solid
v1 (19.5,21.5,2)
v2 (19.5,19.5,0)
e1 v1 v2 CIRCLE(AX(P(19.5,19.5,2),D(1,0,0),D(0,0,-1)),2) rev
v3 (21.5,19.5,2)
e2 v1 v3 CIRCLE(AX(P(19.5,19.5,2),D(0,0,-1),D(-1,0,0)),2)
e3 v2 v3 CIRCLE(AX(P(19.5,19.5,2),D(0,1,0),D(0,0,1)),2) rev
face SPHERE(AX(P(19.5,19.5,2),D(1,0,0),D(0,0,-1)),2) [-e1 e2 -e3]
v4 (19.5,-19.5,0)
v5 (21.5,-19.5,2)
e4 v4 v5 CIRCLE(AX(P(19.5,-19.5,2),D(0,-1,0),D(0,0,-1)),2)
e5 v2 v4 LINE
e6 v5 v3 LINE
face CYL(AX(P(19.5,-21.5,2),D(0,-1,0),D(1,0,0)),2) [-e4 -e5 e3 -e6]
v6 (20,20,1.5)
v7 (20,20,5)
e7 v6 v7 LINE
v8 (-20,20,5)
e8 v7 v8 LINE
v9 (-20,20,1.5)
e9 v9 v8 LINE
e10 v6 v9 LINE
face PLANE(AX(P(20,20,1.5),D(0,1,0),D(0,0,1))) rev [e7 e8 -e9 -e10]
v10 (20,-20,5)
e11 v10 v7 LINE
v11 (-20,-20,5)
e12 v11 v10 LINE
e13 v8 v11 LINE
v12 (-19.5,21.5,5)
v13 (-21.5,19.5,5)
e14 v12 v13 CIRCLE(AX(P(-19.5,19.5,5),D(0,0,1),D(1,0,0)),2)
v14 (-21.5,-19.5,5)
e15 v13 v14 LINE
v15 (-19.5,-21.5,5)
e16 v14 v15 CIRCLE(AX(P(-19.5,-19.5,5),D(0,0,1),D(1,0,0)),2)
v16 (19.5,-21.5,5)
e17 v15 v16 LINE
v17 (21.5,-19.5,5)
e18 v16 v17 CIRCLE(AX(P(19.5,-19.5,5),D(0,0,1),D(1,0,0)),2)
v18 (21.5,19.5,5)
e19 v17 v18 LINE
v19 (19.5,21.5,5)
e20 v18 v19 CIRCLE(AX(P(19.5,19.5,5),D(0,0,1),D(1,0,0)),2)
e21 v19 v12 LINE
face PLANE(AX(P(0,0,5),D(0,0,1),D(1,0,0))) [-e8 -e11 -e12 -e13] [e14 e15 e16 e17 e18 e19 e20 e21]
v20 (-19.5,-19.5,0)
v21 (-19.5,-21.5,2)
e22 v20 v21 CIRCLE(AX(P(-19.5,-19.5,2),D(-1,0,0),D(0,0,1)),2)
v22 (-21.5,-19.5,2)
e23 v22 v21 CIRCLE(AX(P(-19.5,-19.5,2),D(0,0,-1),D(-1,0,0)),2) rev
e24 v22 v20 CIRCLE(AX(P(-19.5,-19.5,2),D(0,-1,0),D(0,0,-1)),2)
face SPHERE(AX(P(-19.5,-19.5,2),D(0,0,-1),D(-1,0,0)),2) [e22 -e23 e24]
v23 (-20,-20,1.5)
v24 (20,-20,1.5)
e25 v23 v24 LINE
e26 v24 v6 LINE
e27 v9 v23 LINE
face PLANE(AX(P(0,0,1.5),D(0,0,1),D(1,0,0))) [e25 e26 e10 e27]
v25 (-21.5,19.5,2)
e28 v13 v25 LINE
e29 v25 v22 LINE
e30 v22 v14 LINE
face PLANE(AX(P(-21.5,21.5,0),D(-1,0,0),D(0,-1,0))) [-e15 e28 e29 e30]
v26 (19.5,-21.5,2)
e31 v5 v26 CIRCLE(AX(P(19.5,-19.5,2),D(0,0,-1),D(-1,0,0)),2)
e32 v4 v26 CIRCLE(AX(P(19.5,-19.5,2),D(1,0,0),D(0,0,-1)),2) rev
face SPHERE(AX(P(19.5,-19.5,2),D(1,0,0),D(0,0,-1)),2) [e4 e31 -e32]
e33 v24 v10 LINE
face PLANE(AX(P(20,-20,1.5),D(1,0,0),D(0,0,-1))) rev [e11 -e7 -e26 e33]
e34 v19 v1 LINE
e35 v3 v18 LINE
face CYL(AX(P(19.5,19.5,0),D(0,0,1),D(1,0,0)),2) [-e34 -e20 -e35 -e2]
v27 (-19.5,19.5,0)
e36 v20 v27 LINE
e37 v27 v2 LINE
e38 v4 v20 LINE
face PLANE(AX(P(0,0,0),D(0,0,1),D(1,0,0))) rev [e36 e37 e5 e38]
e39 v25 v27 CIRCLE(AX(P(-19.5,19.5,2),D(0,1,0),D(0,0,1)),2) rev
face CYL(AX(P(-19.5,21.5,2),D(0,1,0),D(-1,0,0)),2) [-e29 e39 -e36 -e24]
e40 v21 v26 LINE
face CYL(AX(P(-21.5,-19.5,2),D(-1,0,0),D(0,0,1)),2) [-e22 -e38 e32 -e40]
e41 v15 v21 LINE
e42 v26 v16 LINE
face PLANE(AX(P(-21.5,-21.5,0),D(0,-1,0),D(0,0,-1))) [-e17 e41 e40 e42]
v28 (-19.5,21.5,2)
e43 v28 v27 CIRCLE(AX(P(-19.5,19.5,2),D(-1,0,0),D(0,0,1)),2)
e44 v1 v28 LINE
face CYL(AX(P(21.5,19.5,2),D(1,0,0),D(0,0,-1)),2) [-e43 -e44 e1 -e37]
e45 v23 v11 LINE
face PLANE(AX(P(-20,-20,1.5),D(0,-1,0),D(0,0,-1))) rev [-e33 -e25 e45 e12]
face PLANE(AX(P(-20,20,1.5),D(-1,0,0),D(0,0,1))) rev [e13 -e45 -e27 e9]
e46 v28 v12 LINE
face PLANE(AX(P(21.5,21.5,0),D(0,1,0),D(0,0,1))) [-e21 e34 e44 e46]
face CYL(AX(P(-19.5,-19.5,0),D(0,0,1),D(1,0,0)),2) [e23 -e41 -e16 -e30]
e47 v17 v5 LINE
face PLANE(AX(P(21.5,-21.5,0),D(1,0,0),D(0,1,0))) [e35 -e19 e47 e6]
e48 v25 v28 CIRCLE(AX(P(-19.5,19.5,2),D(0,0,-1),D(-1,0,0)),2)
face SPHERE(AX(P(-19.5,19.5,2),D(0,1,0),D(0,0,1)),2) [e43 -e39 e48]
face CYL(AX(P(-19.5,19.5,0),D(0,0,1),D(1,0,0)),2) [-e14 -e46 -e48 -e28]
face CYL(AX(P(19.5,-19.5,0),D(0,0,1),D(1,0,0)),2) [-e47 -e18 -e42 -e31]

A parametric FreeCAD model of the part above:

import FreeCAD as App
import Part
import Sketcher

V = App.Vector
Q = App.Units.Quantity


def edges_at(feature, points):
    """Names of the edges that pass closest to the given points."""
    edges = feature.Shape.Edges
    near = lambda p: min(range(len(edges)), key=lambda i: edges[i].distToShape(Part.Vertex(*p))[0])
    return sorted({f"Edge{near(p) + 1}" for p in points})

doc = App.newDocument("Part")
body = doc.addObject("PartDesign::Body", "Body")

# Sketch on XY plane
sketch1 = body.newObject("Sketcher::SketchObject", "Sketch")
sketch1.AttachmentSupport = (doc.getObject("XY_Plane"), [""])
sketch1.MapMode = "FlatFace"
sketch1.AttachmentOffset = App.Placement(V(0, 0, 5), App.Rotation())
sketch1.addGeometry([
    Part.LineSegment(V(-22, 22, 0), V(-22, -22, 0)),
    Part.LineSegment(V(-22, -22, 0), V(22, -22, 0)),
    Part.LineSegment(V(22, -22, 0), V(22, 22, 0)),
    Part.LineSegment(V(22, 22, 0), V(-22, 22, 0)),
], False)
sketch1.addConstraint([
    Sketcher.Constraint("Coincident", 0, 2, 1, 1),
    Sketcher.Constraint("Coincident", 1, 2, 2, 1),
    Sketcher.Constraint("Coincident", 2, 2, 3, 1),
    Sketcher.Constraint("Coincident", 3, 2, 0, 1),
    Sketcher.Constraint("Vertical", 0),
    Sketcher.Constraint("Horizontal", 1),
    Sketcher.Constraint("Vertical", 2),
    Sketcher.Constraint("Horizontal", 3),
    Sketcher.Constraint("Symmetric", 0, 2, 2, 2, -1, 1),
    Sketcher.Constraint("Equal", 3, 0),
    Sketcher.Constraint("DistanceX", 1, 1, 1, 2, Q("43 mm")),
])
pad1 = body.newObject("PartDesign::Pad", "Pad")
pad1.Profile = sketch1
pad1.Length = 5
pad1.Reversed = True

# Sketch on XY plane
sketch2 = body.newObject("Sketcher::SketchObject", "Sketch001")
sketch2.AttachmentSupport = (doc.getObject("XY_Plane"), [""])
sketch2.MapMode = "FlatFace"
sketch2.AttachmentOffset = App.Placement(V(0, 0, 5), App.Rotation())
sketch2.addGeometry([
    Part.LineSegment(V(-20, 20, 0), V(-20, -20, 0)),
    Part.LineSegment(V(-20, -20, 0), V(20, -20, 0)),
    Part.LineSegment(V(20, -20, 0), V(20, 20, 0)),
    Part.LineSegment(V(20, 20, 0), V(-20, 20, 0)),
], False)
sketch2.addConstraint([
    Sketcher.Constraint("Coincident", 0, 2, 1, 1),
    Sketcher.Constraint("Coincident", 1, 2, 2, 1),
    Sketcher.Constraint("Coincident", 2, 2, 3, 1),
    Sketcher.Constraint("Coincident", 3, 2, 0, 1),
    Sketcher.Constraint("Vertical", 0),
    Sketcher.Constraint("Horizontal", 1),
    Sketcher.Constraint("Vertical", 2),
    Sketcher.Constraint("Horizontal", 3),
    Sketcher.Constraint("Symmetric", 0, 2, 2, 2, -1, 1),
    Sketcher.Constraint("Equal", 3, 0),
    Sketcher.Constraint("DistanceX", 1, 1, 1, 2, Q("40 mm")),
])
pocket1 = body.newObject("PartDesign::Pocket", "Pocket")
pocket1.Profile = sketch2
pocket1.Length = 3.5
doc.recompute()

fillet = body.newObject("PartDesign::Fillet", "Fillet")
fillet.Base = (pocket1, edges_at(pocket1, [
    (21.5, 0, 0),
    (0, 21.5, 0),
    (-21.5, 0, 0),
    (-21.5, 21.5, 2.5),
    (21.5, 21.5, 2.5),
    (21.5, -21.5, 2.5),
    (-21.5, -21.5, 2.5),
    (0, -21.5, 0),
]))
fillet.Radius = 2

doc.recompute()
